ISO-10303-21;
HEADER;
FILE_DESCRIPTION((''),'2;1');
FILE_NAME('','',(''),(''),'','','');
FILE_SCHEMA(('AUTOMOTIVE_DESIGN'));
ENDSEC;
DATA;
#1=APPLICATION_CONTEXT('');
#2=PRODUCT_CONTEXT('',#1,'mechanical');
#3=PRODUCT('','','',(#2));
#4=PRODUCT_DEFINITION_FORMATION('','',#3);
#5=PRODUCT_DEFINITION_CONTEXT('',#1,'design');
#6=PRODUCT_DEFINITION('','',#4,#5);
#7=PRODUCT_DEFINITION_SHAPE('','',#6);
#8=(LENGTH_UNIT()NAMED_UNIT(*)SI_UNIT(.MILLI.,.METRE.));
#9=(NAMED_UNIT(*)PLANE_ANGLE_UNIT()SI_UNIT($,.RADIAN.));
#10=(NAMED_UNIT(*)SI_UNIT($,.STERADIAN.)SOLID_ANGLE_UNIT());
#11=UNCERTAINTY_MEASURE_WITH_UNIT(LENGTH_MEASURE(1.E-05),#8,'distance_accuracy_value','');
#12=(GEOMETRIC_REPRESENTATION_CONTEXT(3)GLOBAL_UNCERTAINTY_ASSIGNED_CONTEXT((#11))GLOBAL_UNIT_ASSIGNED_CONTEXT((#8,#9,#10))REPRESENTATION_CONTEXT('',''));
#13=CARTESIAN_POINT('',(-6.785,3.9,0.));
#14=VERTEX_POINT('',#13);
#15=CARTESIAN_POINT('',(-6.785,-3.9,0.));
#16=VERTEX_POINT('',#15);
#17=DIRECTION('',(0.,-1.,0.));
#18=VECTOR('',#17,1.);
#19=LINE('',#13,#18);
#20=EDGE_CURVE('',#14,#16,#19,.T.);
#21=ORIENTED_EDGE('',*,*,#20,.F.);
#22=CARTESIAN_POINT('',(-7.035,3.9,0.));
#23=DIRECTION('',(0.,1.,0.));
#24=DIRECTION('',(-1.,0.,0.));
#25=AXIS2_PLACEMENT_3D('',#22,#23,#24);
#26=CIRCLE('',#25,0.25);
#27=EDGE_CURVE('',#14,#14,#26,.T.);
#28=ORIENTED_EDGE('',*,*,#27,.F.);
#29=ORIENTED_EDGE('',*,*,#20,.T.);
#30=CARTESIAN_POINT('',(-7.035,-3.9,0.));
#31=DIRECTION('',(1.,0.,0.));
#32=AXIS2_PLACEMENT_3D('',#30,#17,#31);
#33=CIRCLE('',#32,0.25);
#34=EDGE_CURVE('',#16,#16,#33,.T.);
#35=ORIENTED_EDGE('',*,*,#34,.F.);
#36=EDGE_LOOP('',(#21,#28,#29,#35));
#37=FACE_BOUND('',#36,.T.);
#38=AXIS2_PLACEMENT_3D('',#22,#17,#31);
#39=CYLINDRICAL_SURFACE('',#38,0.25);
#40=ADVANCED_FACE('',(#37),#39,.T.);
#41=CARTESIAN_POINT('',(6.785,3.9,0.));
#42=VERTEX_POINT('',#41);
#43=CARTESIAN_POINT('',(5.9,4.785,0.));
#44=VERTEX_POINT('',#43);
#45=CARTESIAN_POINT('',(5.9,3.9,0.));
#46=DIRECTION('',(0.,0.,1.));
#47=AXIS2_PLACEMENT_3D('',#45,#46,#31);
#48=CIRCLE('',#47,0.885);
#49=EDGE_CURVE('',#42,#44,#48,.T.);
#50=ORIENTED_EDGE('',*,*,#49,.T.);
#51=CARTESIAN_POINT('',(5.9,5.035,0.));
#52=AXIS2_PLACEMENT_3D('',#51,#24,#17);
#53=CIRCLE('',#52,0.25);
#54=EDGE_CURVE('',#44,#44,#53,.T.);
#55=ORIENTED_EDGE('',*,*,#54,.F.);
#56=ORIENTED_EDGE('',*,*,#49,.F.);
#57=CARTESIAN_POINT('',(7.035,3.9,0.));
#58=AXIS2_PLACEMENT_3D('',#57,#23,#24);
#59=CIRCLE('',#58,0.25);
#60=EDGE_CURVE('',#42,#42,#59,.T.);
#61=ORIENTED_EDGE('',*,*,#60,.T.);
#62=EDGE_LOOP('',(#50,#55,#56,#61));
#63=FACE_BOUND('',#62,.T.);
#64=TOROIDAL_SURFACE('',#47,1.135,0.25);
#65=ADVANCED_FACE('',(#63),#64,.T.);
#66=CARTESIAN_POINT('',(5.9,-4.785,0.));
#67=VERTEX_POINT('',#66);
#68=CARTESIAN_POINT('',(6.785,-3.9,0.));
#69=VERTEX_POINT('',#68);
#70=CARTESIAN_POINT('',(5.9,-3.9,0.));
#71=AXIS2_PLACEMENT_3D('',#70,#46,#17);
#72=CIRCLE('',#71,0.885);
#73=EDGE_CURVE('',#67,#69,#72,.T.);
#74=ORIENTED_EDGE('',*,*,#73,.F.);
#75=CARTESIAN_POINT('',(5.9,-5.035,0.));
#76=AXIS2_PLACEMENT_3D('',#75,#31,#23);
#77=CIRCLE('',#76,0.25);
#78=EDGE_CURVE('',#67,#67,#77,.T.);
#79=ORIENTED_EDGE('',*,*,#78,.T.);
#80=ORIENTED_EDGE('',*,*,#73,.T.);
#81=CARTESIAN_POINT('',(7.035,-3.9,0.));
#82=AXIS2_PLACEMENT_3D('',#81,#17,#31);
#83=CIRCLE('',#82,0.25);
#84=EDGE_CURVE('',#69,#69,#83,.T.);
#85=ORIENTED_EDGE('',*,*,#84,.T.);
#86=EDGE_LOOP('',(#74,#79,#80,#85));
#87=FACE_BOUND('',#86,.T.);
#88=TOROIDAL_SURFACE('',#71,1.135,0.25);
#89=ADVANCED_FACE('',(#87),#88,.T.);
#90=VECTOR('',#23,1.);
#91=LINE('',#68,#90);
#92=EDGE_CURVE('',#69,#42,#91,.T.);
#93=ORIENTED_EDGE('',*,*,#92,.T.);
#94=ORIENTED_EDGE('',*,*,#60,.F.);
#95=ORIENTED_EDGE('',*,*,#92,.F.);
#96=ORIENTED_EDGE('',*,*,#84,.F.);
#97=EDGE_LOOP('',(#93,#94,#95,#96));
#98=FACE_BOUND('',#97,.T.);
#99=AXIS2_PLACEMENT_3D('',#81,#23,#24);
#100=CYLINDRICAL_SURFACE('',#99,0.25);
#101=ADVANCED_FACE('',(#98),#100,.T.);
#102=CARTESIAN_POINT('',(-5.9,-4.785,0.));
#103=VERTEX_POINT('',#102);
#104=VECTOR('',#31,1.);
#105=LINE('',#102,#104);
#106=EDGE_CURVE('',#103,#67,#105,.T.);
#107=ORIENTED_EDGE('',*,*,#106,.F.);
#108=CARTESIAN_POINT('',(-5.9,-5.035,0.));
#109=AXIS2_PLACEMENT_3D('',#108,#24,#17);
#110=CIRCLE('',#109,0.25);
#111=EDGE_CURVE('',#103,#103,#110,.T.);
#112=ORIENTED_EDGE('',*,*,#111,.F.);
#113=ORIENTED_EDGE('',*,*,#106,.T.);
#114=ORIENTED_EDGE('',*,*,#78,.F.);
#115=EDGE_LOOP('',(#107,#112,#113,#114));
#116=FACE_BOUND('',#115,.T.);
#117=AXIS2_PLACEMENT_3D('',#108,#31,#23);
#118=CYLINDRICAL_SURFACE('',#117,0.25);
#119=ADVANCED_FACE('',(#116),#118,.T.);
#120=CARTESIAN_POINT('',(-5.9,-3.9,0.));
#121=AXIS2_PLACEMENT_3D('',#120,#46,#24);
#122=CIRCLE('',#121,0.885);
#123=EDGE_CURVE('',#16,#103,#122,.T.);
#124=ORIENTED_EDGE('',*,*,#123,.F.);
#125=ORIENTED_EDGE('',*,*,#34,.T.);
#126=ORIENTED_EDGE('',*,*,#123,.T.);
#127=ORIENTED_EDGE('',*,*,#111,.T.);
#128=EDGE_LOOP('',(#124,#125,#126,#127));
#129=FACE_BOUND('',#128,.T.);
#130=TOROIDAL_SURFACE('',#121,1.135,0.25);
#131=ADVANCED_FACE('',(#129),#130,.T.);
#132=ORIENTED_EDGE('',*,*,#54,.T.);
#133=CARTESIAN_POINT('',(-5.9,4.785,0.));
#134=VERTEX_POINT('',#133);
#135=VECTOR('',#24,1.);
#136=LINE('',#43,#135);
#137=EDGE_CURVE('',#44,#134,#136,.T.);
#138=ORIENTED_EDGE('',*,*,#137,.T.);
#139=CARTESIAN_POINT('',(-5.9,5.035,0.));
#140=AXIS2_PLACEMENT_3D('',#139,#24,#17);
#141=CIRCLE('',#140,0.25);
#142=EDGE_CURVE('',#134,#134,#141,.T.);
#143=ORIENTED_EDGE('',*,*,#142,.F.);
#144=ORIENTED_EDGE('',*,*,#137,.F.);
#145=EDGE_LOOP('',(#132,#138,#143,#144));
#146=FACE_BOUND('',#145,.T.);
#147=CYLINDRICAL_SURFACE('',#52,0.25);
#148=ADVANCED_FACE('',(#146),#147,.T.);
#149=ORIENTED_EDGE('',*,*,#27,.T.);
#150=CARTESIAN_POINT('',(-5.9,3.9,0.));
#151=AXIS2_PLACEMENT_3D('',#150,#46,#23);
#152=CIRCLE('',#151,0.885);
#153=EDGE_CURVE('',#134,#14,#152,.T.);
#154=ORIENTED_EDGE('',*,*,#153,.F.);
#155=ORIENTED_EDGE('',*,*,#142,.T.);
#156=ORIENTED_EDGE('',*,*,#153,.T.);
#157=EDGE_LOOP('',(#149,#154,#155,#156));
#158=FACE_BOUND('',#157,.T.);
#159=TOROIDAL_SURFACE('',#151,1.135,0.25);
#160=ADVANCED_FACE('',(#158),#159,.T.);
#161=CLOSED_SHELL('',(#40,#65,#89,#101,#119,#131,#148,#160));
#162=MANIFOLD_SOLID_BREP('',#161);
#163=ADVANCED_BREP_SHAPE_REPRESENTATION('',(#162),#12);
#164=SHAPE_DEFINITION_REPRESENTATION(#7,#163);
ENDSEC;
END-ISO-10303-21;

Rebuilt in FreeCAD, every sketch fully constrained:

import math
import FreeCAD as App
import Part
import Sketcher

V = App.Vector
Q = App.Units.Quantity

doc = App.newDocument("Part")
params = doc.addObject("Spreadsheet::Sheet", "Params")
for row, (alias, value) in enumerate([
    ("sketch1_diameter", "0.5 mm"),
    ("sketch2_width", "11.8 mm"),
    ("sketch2_height", "7.8 mm"),
], start=1):
    params.set(f"A{row}", alias)
    params.set(f"B{row}", "=" + value)
    params.setAlias(f"B{row}", alias)

body = doc.addObject("PartDesign::Body", "Body")

sketch1 = doc.addObject("Sketcher::SketchObject", "Sketch")
body.addObject(sketch1)
sketch1.AttachmentSupport = (doc.XZ_Plane, [""])
sketch1.MapMode = "FlatFace"
sketch1.AttachmentOffset = App.Placement(V(0, 0, 3.9), App.Rotation())
sketch1.addGeometry(Part.Circle(V(-7.04, 0, 0), V(0, 0, 1), 0.25), False)
sketch1.addConstraint(Sketcher.Constraint("PointOnObject", 0, 3, -1))
sketch1.addConstraint(Sketcher.Constraint("Diameter", 0, Q("0.5 mm")))
sketch1.addConstraint(Sketcher.Constraint("DistanceX", 0, 3, -1, 1, Q("7.035 mm")))
sketch1.setExpression("Constraints[1]", "Params.sketch1_diameter")

sketch2 = doc.addObject("Sketcher::SketchObject", "Sketch001")
body.addObject(sketch2)
sketch2.AttachmentSupport = (doc.XY_Plane, [""])
sketch2.MapMode = "FlatFace"
sketch2.addGeometry(Part.LineSegment(V(5.9, 5, 0), V(-5.9, 5, 0)), False)
sketch2.addGeometry(Part.ArcOfCircle(Part.Circle(V(-5.9, 3.9, 0), V(0, 0, 1), 1.1), math.radians(90), math.radians(180)), False)
sketch2.addGeometry(Part.LineSegment(V(-7, 3.9, 0), V(-7, -3.9, 0)), False)
sketch2.addGeometry(Part.ArcOfCircle(Part.Circle(V(-5.9, -3.9, 0), V(0, 0, 1), 1.1), math.radians(180), math.radians(270)), False)
sketch2.addGeometry(Part.LineSegment(V(-5.9, -5, 0), V(5.9, -5, 0)), False)
sketch2.addGeometry(Part.ArcOfCircle(Part.Circle(V(5.9, -3.9, 0), V(0, 0, 1), 1.1), math.radians(-90), math.radians(0)), False)
sketch2.addGeometry(Part.LineSegment(V(7, -3.9, 0), V(7, 3.9, 0)), False)
sketch2.addGeometry(Part.ArcOfCircle(Part.Circle(V(5.9, 3.9, 0), V(0, 0, 1), 1.1), math.radians(0), math.radians(90)), False)
sketch2.addConstraint(Sketcher.Constraint("Tangent", 0, 2, 1, 1))
sketch2.addConstraint(Sketcher.Constraint("Tangent", 1, 2, 2, 1))
sketch2.addConstraint(Sketcher.Constraint("Tangent", 2, 2, 3, 1))
sketch2.addConstraint(Sketcher.Constraint("Tangent", 3, 2, 4, 1))
sketch2.addConstraint(Sketcher.Constraint("Tangent", 4, 2, 5, 1))
sketch2.addConstraint(Sketcher.Constraint("Tangent", 5, 2, 6, 1))
sketch2.addConstraint(Sketcher.Constraint("Tangent", 6, 2, 7, 1))
sketch2.addConstraint(Sketcher.Constraint("Tangent", 7, 2, 0, 1))
sketch2.addConstraint(Sketcher.Constraint("Horizontal", 0))
sketch2.addConstraint(Sketcher.Constraint("Vertical", 2))
sketch2.addConstraint(Sketcher.Constraint("Horizontal", 4))
sketch2.addConstraint(Sketcher.Constraint("Vertical", 6))
sketch2.addConstraint(Sketcher.Constraint("Equal", 1, 3))
sketch2.addConstraint(Sketcher.Constraint("Equal", 3, 5))
sketch2.addConstraint(Sketcher.Constraint("Equal", 5, 7))
sketch2.addConstraint(Sketcher.Constraint("Symmetric", 1, 3, 5, 3, -1, 1))
sketch2.addConstraint(Sketcher.Constraint("DistanceX", 0, 2, 0, 1, Q("11.8 mm")))
sketch2.addConstraint(Sketcher.Constraint("DistanceY", 2, 2, 2, 1, Q("7.8 mm")))
sketch2.addConstraint(Sketcher.Constraint("Radius", 1, Q("1.135 mm")))
sketch2.setExpression("Constraints[16]", "Params.sketch2_width")
sketch2.setExpression("Constraints[17]", "Params.sketch2_height")
doc.recompute()

additivepipe = doc.addObject("PartDesign::AdditivePipe", "AdditivePipe")
body.addObject(additivepipe)
additivepipe.Profile = sketch1
additivepipe.Spine = (sketch2, ["Edge1", "Edge2", "Edge3", "Edge4", "Edge5", "Edge6", "Edge7", "Edge8"])

doc.recompute()
